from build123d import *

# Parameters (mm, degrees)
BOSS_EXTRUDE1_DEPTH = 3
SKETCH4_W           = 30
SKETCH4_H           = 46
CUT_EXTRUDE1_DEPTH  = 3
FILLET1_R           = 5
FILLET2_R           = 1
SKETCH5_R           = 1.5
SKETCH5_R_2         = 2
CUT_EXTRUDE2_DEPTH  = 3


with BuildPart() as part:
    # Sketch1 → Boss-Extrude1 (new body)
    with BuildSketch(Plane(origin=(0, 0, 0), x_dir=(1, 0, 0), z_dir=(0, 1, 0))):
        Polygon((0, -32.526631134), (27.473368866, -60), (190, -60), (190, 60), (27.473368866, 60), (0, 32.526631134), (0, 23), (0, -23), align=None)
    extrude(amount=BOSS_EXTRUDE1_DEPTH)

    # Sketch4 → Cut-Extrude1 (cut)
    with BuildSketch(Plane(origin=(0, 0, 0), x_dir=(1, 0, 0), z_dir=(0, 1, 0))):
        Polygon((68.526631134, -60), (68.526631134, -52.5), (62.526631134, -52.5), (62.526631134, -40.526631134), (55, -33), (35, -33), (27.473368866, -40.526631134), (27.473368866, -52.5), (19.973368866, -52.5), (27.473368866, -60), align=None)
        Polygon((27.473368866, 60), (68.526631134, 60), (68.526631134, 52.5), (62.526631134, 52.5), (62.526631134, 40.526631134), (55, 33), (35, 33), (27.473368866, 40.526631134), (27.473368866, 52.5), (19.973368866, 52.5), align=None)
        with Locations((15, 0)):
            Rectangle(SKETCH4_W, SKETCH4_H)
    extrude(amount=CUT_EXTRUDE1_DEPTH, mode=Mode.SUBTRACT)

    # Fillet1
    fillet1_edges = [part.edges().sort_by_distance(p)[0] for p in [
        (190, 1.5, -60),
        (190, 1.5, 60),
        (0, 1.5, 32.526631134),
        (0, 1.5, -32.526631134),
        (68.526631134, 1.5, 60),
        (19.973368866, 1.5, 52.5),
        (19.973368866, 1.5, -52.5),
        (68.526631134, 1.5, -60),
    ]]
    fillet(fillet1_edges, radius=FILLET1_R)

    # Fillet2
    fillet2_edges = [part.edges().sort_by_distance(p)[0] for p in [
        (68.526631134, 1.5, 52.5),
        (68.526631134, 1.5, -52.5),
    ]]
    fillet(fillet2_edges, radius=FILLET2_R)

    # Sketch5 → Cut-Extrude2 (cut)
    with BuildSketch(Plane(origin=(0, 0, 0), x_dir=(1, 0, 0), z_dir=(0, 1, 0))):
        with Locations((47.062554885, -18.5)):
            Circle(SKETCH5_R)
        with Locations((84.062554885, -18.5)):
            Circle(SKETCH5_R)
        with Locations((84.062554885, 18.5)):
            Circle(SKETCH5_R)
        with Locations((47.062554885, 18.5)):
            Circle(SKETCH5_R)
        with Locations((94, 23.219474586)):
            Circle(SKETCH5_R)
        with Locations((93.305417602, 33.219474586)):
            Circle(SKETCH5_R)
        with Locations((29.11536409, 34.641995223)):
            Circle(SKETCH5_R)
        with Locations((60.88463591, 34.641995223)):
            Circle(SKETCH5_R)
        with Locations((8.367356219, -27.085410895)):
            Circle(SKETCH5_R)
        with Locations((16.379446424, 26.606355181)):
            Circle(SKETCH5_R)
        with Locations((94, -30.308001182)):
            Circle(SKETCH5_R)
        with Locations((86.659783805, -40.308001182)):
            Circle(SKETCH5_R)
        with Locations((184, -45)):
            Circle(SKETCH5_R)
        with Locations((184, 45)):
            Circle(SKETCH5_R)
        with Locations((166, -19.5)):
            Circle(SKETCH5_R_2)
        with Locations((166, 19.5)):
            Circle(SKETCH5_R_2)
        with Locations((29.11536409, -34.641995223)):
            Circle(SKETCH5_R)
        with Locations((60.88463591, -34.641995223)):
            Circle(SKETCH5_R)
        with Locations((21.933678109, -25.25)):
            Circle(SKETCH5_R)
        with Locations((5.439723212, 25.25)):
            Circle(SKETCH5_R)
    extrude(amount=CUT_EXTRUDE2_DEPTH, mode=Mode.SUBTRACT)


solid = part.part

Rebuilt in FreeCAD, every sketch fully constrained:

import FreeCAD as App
import Part
import Sketcher
from FreeCAD import Vector


def edges_at(feature, points):
    """Names of the edges that pass closest to the given points."""
    edges = feature.Shape.Edges
    near = lambda p: min(range(len(edges)), key=lambda i: edges[i].distToShape(Part.Vertex(*p))[0])
    return sorted({f"Edge{near(p) + 1}" for p in points})

doc = App.newDocument("Part")
params = doc.addObject("Spreadsheet::Sheet", "Params")
for row, (alias, value) in enumerate([
    ("sketch1_height", "120 mm"),
    ("pad1_length", "3 mm"),
    ("sketch2_width", "6 mm"),
    ("sketch2_width2", "20 mm"),
    ("sketch2_width3", "30 mm"),
    ("sketch2_height", "46 mm"),
    ("sketch2_width4", "7.5 mm"),
    ("pocket1_length", "3 mm"),
    ("fillet_radius", "5 mm"),
    ("fillet2_radius", "1 mm"),
    ("sketch3_diameter", "3 mm"),
    ("sketch3_diameter2", "4 mm"),
    ("pocket2_length", "3 mm"),
], start=1):
    params.set(f"A{row}", alias)
    params.set(f"B{row}", "=" + value)
    params.setAlias(f"B{row}", alias)

body = doc.addObject("PartDesign::Body", "Body")

# Sketch on XZ plane
sketch1 = body.newObject("Sketcher::SketchObject", "Sketch")
sketch1.AttachmentSupport = (doc.getObject("XZ_Plane"), [""])
sketch1.MapMode = "FlatFace"
sketch1.addGeometry(Part.LineSegment(Vector(0, 33, 0), Vector(27, 60, 0)), False)
sketch1.addGeometry(Part.LineSegment(Vector(27, 60, 0), Vector(190, 60, 0)), False)
sketch1.addGeometry(Part.LineSegment(Vector(190, 60, 0), Vector(190, -60, 0)), False)
sketch1.addGeometry(Part.LineSegment(Vector(190, -60, 0), Vector(27, -60, 0)), False)
sketch1.addGeometry(Part.LineSegment(Vector(27, -60, 0), Vector(0, -33, 0)), False)
sketch1.addGeometry(Part.LineSegment(Vector(0, -33, 0), Vector(0, 33, 0)), False)
sketch1.addConstraint(Sketcher.Constraint("Coincident", 0, 2, 1, 1))
sketch1.addConstraint(Sketcher.Constraint("Coincident", 1, 2, 2, 1))
sketch1.addConstraint(Sketcher.Constraint("Coincident", 2, 2, 3, 1))
sketch1.addConstraint(Sketcher.Constraint("Coincident", 3, 2, 4, 1))
sketch1.addConstraint(Sketcher.Constraint("Coincident", 4, 2, 5, 1))
sketch1.addConstraint(Sketcher.Constraint("Coincident", 5, 2, 0, 1))
sketch1.addConstraint(Sketcher.Constraint("Horizontal", 1))
sketch1.addConstraint(Sketcher.Constraint("Vertical", 2))
sketch1.addConstraint(Sketcher.Constraint("Horizontal", 3))
sketch1.addConstraint(Sketcher.Constraint("Vertical", 5))
sketch1.addConstraint(Sketcher.Constraint("Symmetric", 4, 2, 5, 2, -1, 1))
sketch1.addConstraint(Sketcher.Constraint("Symmetric", 0, 2, 3, 2, -1))
sketch1.addConstraint(Sketcher.Constraint("Perpendicular", 0, 4))
sketch1.addConstraint(Sketcher.Constraint("DistanceY", 2, 2, 2, 1, 120.0))
sketch1.addConstraint(Sketcher.Constraint("DistanceX", -1, 1, 1, 2, 190.0))
sketch1.addConstraint(Sketcher.Constraint("DistanceX", 1, 1, 1, 2, 162.526631))
sketch1.setExpression("Constraints[13]", "Params.sketch1_height")
pad1 = body.newObject("PartDesign::Pad", "Pad")
pad1.Profile = sketch1
pad1.setExpression("Length", "Params.pad1_length")
pad1.Reversed = True

# Sketch on XZ plane
sketch2 = body.newObject("Sketcher::SketchObject", "Sketch001")
sketch2.AttachmentSupport = (doc.getObject("XZ_Plane"), [""])
sketch2.MapMode = "FlatFace"
sketch2.addGeometry(Part.LineSegment(Vector(69, 60, 0), Vector(69, 52, 0)), False)
sketch2.addGeometry(Part.LineSegment(Vector(69, 52, 0), Vector(63, 52, 0)), False)
sketch2.addGeometry(Part.LineSegment(Vector(63, 52, 0), Vector(63, 41, 0)), False)
sketch2.addGeometry(Part.LineSegment(Vector(63, 41, 0), Vector(55, 33, 0)), False)
sketch2.addGeometry(Part.LineSegment(Vector(55, 33, 0), Vector(35, 33, 0)), False)
sketch2.addGeometry(Part.LineSegment(Vector(35, 33, 0), Vector(27, 41, 0)), False)
sketch2.addGeometry(Part.LineSegment(Vector(27, 41, 0), Vector(27, 52, 0)), False)
sketch2.addGeometry(Part.LineSegment(Vector(27, 52, 0), Vector(20, 52, 0)), False)
sketch2.addGeometry(Part.LineSegment(Vector(20, 52, 0), Vector(27, 60, 0)), False)
sketch2.addGeometry(Part.LineSegment(Vector(27, 60, 0), Vector(69, 60, 0)), False)
sketch2.addGeometry(Part.LineSegment(Vector(69, -60, 0), Vector(27, -60, 0)), False)
sketch2.addGeometry(Part.LineSegment(Vector(27, -60, 0), Vector(20, -52, 0)), False)
sketch2.addGeometry(Part.LineSegment(Vector(20, -52, 0), Vector(27, -52, 0)), False)
sketch2.addGeometry(Part.LineSegment(Vector(27, -52, 0), Vector(27, -41, 0)), False)
sketch2.addGeometry(Part.LineSegment(Vector(27, -41, 0), Vector(35, -33, 0)), False)
sketch2.addGeometry(Part.LineSegment(Vector(35, -33, 0), Vector(55, -33, 0)), False)
sketch2.addGeometry(Part.LineSegment(Vector(55, -33, 0), Vector(63, -41, 0)), False)
sketch2.addGeometry(Part.LineSegment(Vector(63, -41, 0), Vector(63, -52, 0)), False)
sketch2.addGeometry(Part.LineSegment(Vector(63, -52, 0), Vector(69, -52, 0)), False)
sketch2.addGeometry(Part.LineSegment(Vector(69, -52, 0), Vector(69, -60, 0)), False)
sketch2.addGeometry(Part.LineSegment(Vector(0, -23, 0), Vector(0, 23, 0)), False)
sketch2.addGeometry(Part.LineSegment(Vector(0, 23, 0), Vector(30, 23, 0)), False)
sketch2.addGeometry(Part.LineSegment(Vector(30, 23, 0), Vector(30, -23, 0)), False)
sketch2.addGeometry(Part.LineSegment(Vector(30, -23, 0), Vector(0, -23, 0)), False)
sketch2.addConstraint(Sketcher.Constraint("Coincident", 0, 2, 1, 1))
sketch2.addConstraint(Sketcher.Constraint("Coincident", 1, 2, 2, 1))
sketch2.addConstraint(Sketcher.Constraint("Coincident", 2, 2, 3, 1))
sketch2.addConstraint(Sketcher.Constraint("Coincident", 3, 2, 4, 1))
sketch2.addConstraint(Sketcher.Constraint("Coincident", 4, 2, 5, 1))
sketch2.addConstraint(Sketcher.Constraint("Coincident", 5, 2, 6, 1))
sketch2.addConstraint(Sketcher.Constraint("Coincident", 6, 2, 7, 1))
sketch2.addConstraint(Sketcher.Constraint("Coincident", 7, 2, 8, 1))
sketch2.addConstraint(Sketcher.Constraint("Coincident", 8, 2, 9, 1))
sketch2.addConstraint(Sketcher.Constraint("Coincident", 9, 2, 0, 1))
sketch2.addConstraint(Sketcher.Constraint("Coincident", 10, 2, 11, 1))
sketch2.addConstraint(Sketcher.Constraint("Coincident", 11, 2, 12, 1))
sketch2.addConstraint(Sketcher.Constraint("Coincident", 12, 2, 13, 1))
sketch2.addConstraint(Sketcher.Constraint("Coincident", 13, 2, 14, 1))
sketch2.addConstraint(Sketcher.Constraint("Coincident", 14, 2, 15, 1))
sketch2.addConstraint(Sketcher.Constraint("Coincident", 15, 2, 16, 1))
sketch2.addConstraint(Sketcher.Constraint("Coincident", 16, 2, 17, 1))
sketch2.addConstraint(Sketcher.Constraint("Coincident", 17, 2, 18, 1))
sketch2.addConstraint(Sketcher.Constraint("Coincident", 18, 2, 19, 1))
sketch2.addConstraint(Sketcher.Constraint("Coincident", 19, 2, 10, 1))
sketch2.addConstraint(Sketcher.Constraint("Coincident", 20, 2, 21, 1))
sketch2.addConstraint(Sketcher.Constraint("Coincident", 21, 2, 22, 1))
sketch2.addConstraint(Sketcher.Constraint("Coincident", 22, 2, 23, 1))
sketch2.addConstraint(Sketcher.Constraint("Coincident", 23, 2, 20, 1))
sketch2.addConstraint(Sketcher.Constraint("Vertical", 0))
sketch2.addConstraint(Sketcher.Constraint("Horizontal", 1))
sketch2.addConstraint(Sketcher.Constraint("Vertical", 2))
sketch2.addConstraint(Sketcher.Constraint("Horizontal", 4))
sketch2.addConstraint(Sketcher.Constraint("Vertical", 6))
sketch2.addConstraint(Sketcher.Constraint("Horizontal", 7))
sketch2.addConstraint(Sketcher.Constraint("Horizontal", 9))
sketch2.addConstraint(Sketcher.Constraint("Horizontal", 10))
sketch2.addConstraint(Sketcher.Constraint("Horizontal", 12))
sketch2.addConstraint(Sketcher.Constraint("Vertical", 13))
sketch2.addConstraint(Sketcher.Constraint("Horizontal", 15))
sketch2.addConstraint(Sketcher.Constraint("Vertical", 17))
sketch2.addConstraint(Sketcher.Constraint("Horizontal", 18))
sketch2.addConstraint(Sketcher.Constraint("Vertical", 19))
sketch2.addConstraint(Sketcher.Constraint("Vertical", 20))
sketch2.addConstraint(Sketcher.Constraint("Horizontal", 21))
sketch2.addConstraint(Sketcher.Constraint("Vertical", 22))
sketch2.addConstraint(Sketcher.Constraint("Horizontal", 23))
sketch2.addConstraint(Sketcher.Constraint("Symmetric", 20, 2, 23, 2, -1, 1))
sketch2.addConstraint(Sketcher.Constraint("Symmetric", 8, 2, 10, 2, -1))
sketch2.addConstraint(Sketcher.Constraint("Symmetric", 7, 2, 11, 2, -1))
sketch2.addConstraint(Sketcher.Constraint("Symmetric", 5, 2, 13, 2, -1))
sketch2.addConstraint(Sketcher.Constraint("Symmetric", 4, 2, 14, 2, -1))
sketch2.addConstraint(Sketcher.Constraint("Symmetric", 2, 2, 16, 2, -1))
sketch2.addConstraint(Sketcher.Constraint("Symmetric", 0, 2, 18, 2, -1))
sketch2.addConstraint(Sketcher.Constraint("Perpendicular", 3, 5))
sketch2.addConstraint(Sketcher.Constraint("Perpendicular", 5, 8))
sketch2.addConstraint(Sketcher.Constraint("Perpendicular", 8, 11))
sketch2.addConstraint(Sketcher.Constraint("Perpendicular", 14, 16))
sketch2.addConstraint(Sketcher.Constraint("Horizontal", 2, 2, 5, 2))
sketch2.addConstraint(Sketcher.Constraint("Horizontal", 1, 2, 6, 2))
sketch2.addConstraint(Sketcher.Constraint("Vertical", 6, 2, 8, 2))
sketch2.addConstraint(Sketcher.Constraint("DistanceX", 1, 2, 1, 1, 6.0))
sketch2.addConstraint(Sketcher.Constraint("DistanceX", 4, 2, 4, 1, 20.0))
sketch2.addConstraint(Sketcher.Constraint("DistanceX", 21, 1, 21, 2, 30.0))
sketch2.addConstraint(Sketcher.Constraint("DistanceY", 20, 1, 20, 2, 46.0))
sketch2.addConstraint(Sketcher.Constraint("DistanceX", 7, 2, 7, 1, 7.5))
sketch2.addConstraint(Sketcher.Constraint("DistanceX", -1, 1, 3, 2, 55.0))
sketch2.addConstraint(Sketcher.Constraint("DistanceY", -1, 1, 3, 2, 33.0))
sketch2.addConstraint(Sketcher.Constraint("DistanceY", -1, 1, 8, 2, 60.0))
sketch2.addConstraint(Sketcher.Constraint("DistanceY", 2, 2, 2, 1, 11.973369))
sketch2.setExpression("Constraints[56]", "Params.sketch2_width")
sketch2.setExpression("Constraints[57]", "Params.sketch2_width2")
sketch2.setExpression("Constraints[58]", "Params.sketch2_width3")
sketch2.setExpression("Constraints[59]", "Params.sketch2_height")
sketch2.setExpression("Constraints[60]", "Params.sketch2_width4")
pocket1 = body.newObject("PartDesign::Pocket", "Pocket")
pocket1.Profile = sketch2
pocket1.setExpression("Length", "Params.pocket1_length")
doc.recompute()

fillet = body.newObject("PartDesign::Fillet", "Fillet")
fillet.Base = (pocket1, edges_at(pocket1, [
    (190, 1.5, -60),
    (190, 1.5, 60),
    (0, 1.5, 32.527),
    (0, 1.5, -32.527),
    (68.527, 1.5, 60),
    (19.973, 1.5, 52.5),
    (19.973, 1.5, -52.5),
    (68.527, 1.5, -60),
]))
fillet.setExpression("Radius", "Params.fillet_radius")
doc.recompute()

fillet2 = body.newObject("PartDesign::Fillet", "Fillet001")
fillet2.Base = (fillet, edges_at(fillet, [(68.527, 1.5, 52.5), (68.527, 1.5, -52.5)]))
fillet2.setExpression("Radius", "Params.fillet2_radius")

# Sketch on XZ plane
sketch3 = body.newObject("Sketcher::SketchObject", "Sketch002")
sketch3.AttachmentSupport = (doc.getObject("XZ_Plane"), [""])
sketch3.MapMode = "FlatFace"
sketch3.addGeometry(Part.Circle(Vector(47.1, 18.5, 0), Vector(0, 0, 1), 1.5), False)
sketch3.addGeometry(Part.Circle(Vector(84.1, 18.5, 0), Vector(0, 0, 1), 1.5), False)
sketch3.addGeometry(Part.Circle(Vector(84.1, -18.5, 0), Vector(0, 0, 1), 1.5), False)
sketch3.addGeometry(Part.Circle(Vector(47.1, -18.5, 0), Vector(0, 0, 1), 1.5), False)
sketch3.addGeometry(Part.Circle(Vector(94, -23.2, 0), Vector(0, 0, 1), 1.5), False)
sketch3.addGeometry(Part.Circle(Vector(93.3, -33.2, 0), Vector(0, 0, 1), 1.5), False)
sketch3.addGeometry(Part.Circle(Vector(29.1, -34.6, 0), Vector(0, 0, 1), 1.5), False)
sketch3.addGeometry(Part.Circle(Vector(60.9, -34.6, 0), Vector(0, 0, 1), 1.5), False)
sketch3.addGeometry(Part.Circle(Vector(8.4, 27.1, 0), Vector(0, 0, 1), 1.5), False)
sketch3.addGeometry(Part.Circle(Vector(16.4, -26.6, 0), Vector(0, 0, 1), 1.5), False)
sketch3.addGeometry(Part.Circle(Vector(94, 30.3, 0), Vector(0, 0, 1), 1.5), False)
sketch3.addGeometry(Part.Circle(Vector(86.7, 40.3, 0), Vector(0, 0, 1), 1.5), False)
sketch3.addGeometry(Part.Circle(Vector(184, 45, 0), Vector(0, 0, 1), 1.5), False)
sketch3.addGeometry(Part.Circle(Vector(184, -45, 0), Vector(0, 0, 1), 1.5), False)
sketch3.addGeometry(Part.Circle(Vector(166, 19.5, 0), Vector(0, 0, 1), 2), False)
sketch3.addGeometry(Part.Circle(Vector(166, -19.5, 0), Vector(0, 0, 1), 2), False)
sketch3.addGeometry(Part.Circle(Vector(29.1, 34.6, 0), Vector(0, 0, 1), 1.5), False)
sketch3.addGeometry(Part.Circle(Vector(60.9, 34.6, 0), Vector(0, 0, 1), 1.5), False)
sketch3.addGeometry(Part.Circle(Vector(21.9, 25.2, 0), Vector(0, 0, 1), 1.5), False)
sketch3.addGeometry(Part.Circle(Vector(5.4, -25.2, 0), Vector(0, 0, 1), 1.5), False)
sketch3.addConstraint(Sketcher.Constraint("Equal", 0, 1))
sketch3.addConstraint(Sketcher.Constraint("Equal", 1, 2))
sketch3.addConstraint(Sketcher.Constraint("Equal", 2, 3))
sketch3.addConstraint(Sketcher.Constraint("Equal", 3, 4))
sketch3.addConstraint(Sketcher.Constraint("Equal", 4, 5))
sketch3.addConstraint(Sketcher.Constraint("Equal", 5, 6))
sketch3.addConstraint(Sketcher.Constraint("Equal", 6, 7))
sketch3.addConstraint(Sketcher.Constraint("Equal", 7, 8))
sketch3.addConstraint(Sketcher.Constraint("Equal", 8, 9))
sketch3.addConstraint(Sketcher.Constraint("Equal", 9, 10))
sketch3.addConstraint(Sketcher.Constraint("Equal", 10, 11))
sketch3.addConstraint(Sketcher.Constraint("Equal", 11, 12))
sketch3.addConstraint(Sketcher.Constraint("Equal", 12, 13))
sketch3.addConstraint(Sketcher.Constraint("Equal", 14, 15))
sketch3.addConstraint(Sketcher.Constraint("Equal", 13, 16))
sketch3.addConstraint(Sketcher.Constraint("Equal", 16, 17))
sketch3.addConstraint(Sketcher.Constraint("Equal", 17, 18))
sketch3.addConstraint(Sketcher.Constraint("Equal", 18, 19))
sketch3.addConstraint(Sketcher.Constraint("Symmetric", 1, 3, 2, 3, -1))
sketch3.addConstraint(Sketcher.Constraint("Symmetric", 0, 3, 3, 3, -1))
sketch3.addConstraint(Sketcher.Constraint("Symmetric", 12, 3, 13, 3, -1))
sketch3.addConstraint(Sketcher.Constraint("Symmetric", 14, 3, 15, 3, -1))
sketch3.addConstraint(Sketcher.Constraint("Symmetric", 6, 3, 16, 3, -1))
sketch3.addConstraint(Sketcher.Constraint("Symmetric", 7, 3, 17, 3, -1))
sketch3.addConstraint(Sketcher.Constraint("Horizontal", 0, 3, 1, 3))
sketch3.addConstraint(Sketcher.Constraint("Horizontal", 6, 3, 7, 3))
sketch3.addConstraint(Sketcher.Constraint("Vertical", 4, 3, 10, 3))
sketch3.addConstraint(Sketcher.Constraint("Diameter", 0, 3.0))
sketch3.addConstraint(Sketcher.Constraint("Diameter", 14, 4.0))
sketch3.addConstraint(Sketcher.Constraint("DistanceX", -1, 1, 4, 3, 94.0))
sketch3.addConstraint(Sketcher.Constraint("DistanceX", -1, 1, 12, 3, 184.0))
sketch3.addConstraint(Sketcher.Constraint("DistanceY", -1, 1, 12, 3, 45.0))
sketch3.addConstraint(Sketcher.Constraint("DistanceX", -1, 1, 14, 3, 166.0))
sketch3.addConstraint(Sketcher.Constraint("DistanceX", 0, 3, 1, 3, 37.0))
sketch3.addConstraint(Sketcher.Constraint("DistanceY", 2, 3, 1, 3, 37.0))
sketch3.addConstraint(Sketcher.Constraint("DistanceY", 5, 3, 4, 3, 10.0))
sketch3.addConstraint(Sketcher.Constraint("DistanceY", 10, 3, 11, 3, 10.0))
sketch3.addConstraint(Sketcher.Constraint("DistanceY", 1, 3, 14, 3, 1.0))
sketch3.addConstraint(Sketcher.Constraint("DistanceY", 19, 3, 18, 3, 50.5))
sketch3.addConstraint(Sketcher.Constraint("DistanceY", -1, 1, 18, 3, 25.25))
sketch3.addConstraint(Sketcher.Constraint("DistanceY", -1, 1, 10, 3, 30.308001))
sketch3.addConstraint(Sketcher.Constraint("DistanceX", 8, 3, 0, 3, 38.695199))
sketch3.addConstraint(Sketcher.Constraint("DistanceY", -1, 1, 8, 3, 27.085411))
sketch3.addConstraint(Sketcher.Constraint("DistanceX", -1, 1, 18, 3, 21.933678))
sketch3.addConstraint(Sketcher.Constraint("DistanceX", 6, 3, 3, 3, 17.947191))
sketch3.addConstraint(Sketcher.Constraint("DistanceY", 6, 3, 5, 3, 1.422521))
sketch3.addConstraint(Sketcher.Constraint("DistanceX", 3, 3, 7, 3, 13.822081))
sketch3.addConstraint(Sketcher.Constraint("DistanceX", 7, 3, 5, 3, 32.420782))
sketch3.addConstraint(Sketcher.Constraint("DistanceY", 6, 3, 9, 3, 8.03564))
sketch3.addConstraint(Sketcher.Constraint("DistanceX", 9, 3, 3, 3, 30.683108))
sketch3.addConstraint(Sketcher.Constraint("DistanceX", 1, 3, 11, 3, 2.597229))
sketch3.addConstraint(Sketcher.Constraint("DistanceX", 8, 3, 18, 3, 13.566322))
sketch3.addConstraint(Sketcher.Constraint("DistanceX", 19, 3, 6, 3, 23.675641))
sketch3.addConstraint(Sketcher.Constraint("DistanceY", 4, 3, -1, 1, 23.219475))
sketch3.setExpression("Constraints[27]", "Params.sketch3_diameter")
sketch3.setExpression("Constraints[28]", "Params.sketch3_diameter2")
pocket2 = body.newObject("PartDesign::Pocket", "Pocket001")
pocket2.Profile = sketch3
pocket2.setExpression("Length", "Params.pocket2_length")

doc.recompute()
